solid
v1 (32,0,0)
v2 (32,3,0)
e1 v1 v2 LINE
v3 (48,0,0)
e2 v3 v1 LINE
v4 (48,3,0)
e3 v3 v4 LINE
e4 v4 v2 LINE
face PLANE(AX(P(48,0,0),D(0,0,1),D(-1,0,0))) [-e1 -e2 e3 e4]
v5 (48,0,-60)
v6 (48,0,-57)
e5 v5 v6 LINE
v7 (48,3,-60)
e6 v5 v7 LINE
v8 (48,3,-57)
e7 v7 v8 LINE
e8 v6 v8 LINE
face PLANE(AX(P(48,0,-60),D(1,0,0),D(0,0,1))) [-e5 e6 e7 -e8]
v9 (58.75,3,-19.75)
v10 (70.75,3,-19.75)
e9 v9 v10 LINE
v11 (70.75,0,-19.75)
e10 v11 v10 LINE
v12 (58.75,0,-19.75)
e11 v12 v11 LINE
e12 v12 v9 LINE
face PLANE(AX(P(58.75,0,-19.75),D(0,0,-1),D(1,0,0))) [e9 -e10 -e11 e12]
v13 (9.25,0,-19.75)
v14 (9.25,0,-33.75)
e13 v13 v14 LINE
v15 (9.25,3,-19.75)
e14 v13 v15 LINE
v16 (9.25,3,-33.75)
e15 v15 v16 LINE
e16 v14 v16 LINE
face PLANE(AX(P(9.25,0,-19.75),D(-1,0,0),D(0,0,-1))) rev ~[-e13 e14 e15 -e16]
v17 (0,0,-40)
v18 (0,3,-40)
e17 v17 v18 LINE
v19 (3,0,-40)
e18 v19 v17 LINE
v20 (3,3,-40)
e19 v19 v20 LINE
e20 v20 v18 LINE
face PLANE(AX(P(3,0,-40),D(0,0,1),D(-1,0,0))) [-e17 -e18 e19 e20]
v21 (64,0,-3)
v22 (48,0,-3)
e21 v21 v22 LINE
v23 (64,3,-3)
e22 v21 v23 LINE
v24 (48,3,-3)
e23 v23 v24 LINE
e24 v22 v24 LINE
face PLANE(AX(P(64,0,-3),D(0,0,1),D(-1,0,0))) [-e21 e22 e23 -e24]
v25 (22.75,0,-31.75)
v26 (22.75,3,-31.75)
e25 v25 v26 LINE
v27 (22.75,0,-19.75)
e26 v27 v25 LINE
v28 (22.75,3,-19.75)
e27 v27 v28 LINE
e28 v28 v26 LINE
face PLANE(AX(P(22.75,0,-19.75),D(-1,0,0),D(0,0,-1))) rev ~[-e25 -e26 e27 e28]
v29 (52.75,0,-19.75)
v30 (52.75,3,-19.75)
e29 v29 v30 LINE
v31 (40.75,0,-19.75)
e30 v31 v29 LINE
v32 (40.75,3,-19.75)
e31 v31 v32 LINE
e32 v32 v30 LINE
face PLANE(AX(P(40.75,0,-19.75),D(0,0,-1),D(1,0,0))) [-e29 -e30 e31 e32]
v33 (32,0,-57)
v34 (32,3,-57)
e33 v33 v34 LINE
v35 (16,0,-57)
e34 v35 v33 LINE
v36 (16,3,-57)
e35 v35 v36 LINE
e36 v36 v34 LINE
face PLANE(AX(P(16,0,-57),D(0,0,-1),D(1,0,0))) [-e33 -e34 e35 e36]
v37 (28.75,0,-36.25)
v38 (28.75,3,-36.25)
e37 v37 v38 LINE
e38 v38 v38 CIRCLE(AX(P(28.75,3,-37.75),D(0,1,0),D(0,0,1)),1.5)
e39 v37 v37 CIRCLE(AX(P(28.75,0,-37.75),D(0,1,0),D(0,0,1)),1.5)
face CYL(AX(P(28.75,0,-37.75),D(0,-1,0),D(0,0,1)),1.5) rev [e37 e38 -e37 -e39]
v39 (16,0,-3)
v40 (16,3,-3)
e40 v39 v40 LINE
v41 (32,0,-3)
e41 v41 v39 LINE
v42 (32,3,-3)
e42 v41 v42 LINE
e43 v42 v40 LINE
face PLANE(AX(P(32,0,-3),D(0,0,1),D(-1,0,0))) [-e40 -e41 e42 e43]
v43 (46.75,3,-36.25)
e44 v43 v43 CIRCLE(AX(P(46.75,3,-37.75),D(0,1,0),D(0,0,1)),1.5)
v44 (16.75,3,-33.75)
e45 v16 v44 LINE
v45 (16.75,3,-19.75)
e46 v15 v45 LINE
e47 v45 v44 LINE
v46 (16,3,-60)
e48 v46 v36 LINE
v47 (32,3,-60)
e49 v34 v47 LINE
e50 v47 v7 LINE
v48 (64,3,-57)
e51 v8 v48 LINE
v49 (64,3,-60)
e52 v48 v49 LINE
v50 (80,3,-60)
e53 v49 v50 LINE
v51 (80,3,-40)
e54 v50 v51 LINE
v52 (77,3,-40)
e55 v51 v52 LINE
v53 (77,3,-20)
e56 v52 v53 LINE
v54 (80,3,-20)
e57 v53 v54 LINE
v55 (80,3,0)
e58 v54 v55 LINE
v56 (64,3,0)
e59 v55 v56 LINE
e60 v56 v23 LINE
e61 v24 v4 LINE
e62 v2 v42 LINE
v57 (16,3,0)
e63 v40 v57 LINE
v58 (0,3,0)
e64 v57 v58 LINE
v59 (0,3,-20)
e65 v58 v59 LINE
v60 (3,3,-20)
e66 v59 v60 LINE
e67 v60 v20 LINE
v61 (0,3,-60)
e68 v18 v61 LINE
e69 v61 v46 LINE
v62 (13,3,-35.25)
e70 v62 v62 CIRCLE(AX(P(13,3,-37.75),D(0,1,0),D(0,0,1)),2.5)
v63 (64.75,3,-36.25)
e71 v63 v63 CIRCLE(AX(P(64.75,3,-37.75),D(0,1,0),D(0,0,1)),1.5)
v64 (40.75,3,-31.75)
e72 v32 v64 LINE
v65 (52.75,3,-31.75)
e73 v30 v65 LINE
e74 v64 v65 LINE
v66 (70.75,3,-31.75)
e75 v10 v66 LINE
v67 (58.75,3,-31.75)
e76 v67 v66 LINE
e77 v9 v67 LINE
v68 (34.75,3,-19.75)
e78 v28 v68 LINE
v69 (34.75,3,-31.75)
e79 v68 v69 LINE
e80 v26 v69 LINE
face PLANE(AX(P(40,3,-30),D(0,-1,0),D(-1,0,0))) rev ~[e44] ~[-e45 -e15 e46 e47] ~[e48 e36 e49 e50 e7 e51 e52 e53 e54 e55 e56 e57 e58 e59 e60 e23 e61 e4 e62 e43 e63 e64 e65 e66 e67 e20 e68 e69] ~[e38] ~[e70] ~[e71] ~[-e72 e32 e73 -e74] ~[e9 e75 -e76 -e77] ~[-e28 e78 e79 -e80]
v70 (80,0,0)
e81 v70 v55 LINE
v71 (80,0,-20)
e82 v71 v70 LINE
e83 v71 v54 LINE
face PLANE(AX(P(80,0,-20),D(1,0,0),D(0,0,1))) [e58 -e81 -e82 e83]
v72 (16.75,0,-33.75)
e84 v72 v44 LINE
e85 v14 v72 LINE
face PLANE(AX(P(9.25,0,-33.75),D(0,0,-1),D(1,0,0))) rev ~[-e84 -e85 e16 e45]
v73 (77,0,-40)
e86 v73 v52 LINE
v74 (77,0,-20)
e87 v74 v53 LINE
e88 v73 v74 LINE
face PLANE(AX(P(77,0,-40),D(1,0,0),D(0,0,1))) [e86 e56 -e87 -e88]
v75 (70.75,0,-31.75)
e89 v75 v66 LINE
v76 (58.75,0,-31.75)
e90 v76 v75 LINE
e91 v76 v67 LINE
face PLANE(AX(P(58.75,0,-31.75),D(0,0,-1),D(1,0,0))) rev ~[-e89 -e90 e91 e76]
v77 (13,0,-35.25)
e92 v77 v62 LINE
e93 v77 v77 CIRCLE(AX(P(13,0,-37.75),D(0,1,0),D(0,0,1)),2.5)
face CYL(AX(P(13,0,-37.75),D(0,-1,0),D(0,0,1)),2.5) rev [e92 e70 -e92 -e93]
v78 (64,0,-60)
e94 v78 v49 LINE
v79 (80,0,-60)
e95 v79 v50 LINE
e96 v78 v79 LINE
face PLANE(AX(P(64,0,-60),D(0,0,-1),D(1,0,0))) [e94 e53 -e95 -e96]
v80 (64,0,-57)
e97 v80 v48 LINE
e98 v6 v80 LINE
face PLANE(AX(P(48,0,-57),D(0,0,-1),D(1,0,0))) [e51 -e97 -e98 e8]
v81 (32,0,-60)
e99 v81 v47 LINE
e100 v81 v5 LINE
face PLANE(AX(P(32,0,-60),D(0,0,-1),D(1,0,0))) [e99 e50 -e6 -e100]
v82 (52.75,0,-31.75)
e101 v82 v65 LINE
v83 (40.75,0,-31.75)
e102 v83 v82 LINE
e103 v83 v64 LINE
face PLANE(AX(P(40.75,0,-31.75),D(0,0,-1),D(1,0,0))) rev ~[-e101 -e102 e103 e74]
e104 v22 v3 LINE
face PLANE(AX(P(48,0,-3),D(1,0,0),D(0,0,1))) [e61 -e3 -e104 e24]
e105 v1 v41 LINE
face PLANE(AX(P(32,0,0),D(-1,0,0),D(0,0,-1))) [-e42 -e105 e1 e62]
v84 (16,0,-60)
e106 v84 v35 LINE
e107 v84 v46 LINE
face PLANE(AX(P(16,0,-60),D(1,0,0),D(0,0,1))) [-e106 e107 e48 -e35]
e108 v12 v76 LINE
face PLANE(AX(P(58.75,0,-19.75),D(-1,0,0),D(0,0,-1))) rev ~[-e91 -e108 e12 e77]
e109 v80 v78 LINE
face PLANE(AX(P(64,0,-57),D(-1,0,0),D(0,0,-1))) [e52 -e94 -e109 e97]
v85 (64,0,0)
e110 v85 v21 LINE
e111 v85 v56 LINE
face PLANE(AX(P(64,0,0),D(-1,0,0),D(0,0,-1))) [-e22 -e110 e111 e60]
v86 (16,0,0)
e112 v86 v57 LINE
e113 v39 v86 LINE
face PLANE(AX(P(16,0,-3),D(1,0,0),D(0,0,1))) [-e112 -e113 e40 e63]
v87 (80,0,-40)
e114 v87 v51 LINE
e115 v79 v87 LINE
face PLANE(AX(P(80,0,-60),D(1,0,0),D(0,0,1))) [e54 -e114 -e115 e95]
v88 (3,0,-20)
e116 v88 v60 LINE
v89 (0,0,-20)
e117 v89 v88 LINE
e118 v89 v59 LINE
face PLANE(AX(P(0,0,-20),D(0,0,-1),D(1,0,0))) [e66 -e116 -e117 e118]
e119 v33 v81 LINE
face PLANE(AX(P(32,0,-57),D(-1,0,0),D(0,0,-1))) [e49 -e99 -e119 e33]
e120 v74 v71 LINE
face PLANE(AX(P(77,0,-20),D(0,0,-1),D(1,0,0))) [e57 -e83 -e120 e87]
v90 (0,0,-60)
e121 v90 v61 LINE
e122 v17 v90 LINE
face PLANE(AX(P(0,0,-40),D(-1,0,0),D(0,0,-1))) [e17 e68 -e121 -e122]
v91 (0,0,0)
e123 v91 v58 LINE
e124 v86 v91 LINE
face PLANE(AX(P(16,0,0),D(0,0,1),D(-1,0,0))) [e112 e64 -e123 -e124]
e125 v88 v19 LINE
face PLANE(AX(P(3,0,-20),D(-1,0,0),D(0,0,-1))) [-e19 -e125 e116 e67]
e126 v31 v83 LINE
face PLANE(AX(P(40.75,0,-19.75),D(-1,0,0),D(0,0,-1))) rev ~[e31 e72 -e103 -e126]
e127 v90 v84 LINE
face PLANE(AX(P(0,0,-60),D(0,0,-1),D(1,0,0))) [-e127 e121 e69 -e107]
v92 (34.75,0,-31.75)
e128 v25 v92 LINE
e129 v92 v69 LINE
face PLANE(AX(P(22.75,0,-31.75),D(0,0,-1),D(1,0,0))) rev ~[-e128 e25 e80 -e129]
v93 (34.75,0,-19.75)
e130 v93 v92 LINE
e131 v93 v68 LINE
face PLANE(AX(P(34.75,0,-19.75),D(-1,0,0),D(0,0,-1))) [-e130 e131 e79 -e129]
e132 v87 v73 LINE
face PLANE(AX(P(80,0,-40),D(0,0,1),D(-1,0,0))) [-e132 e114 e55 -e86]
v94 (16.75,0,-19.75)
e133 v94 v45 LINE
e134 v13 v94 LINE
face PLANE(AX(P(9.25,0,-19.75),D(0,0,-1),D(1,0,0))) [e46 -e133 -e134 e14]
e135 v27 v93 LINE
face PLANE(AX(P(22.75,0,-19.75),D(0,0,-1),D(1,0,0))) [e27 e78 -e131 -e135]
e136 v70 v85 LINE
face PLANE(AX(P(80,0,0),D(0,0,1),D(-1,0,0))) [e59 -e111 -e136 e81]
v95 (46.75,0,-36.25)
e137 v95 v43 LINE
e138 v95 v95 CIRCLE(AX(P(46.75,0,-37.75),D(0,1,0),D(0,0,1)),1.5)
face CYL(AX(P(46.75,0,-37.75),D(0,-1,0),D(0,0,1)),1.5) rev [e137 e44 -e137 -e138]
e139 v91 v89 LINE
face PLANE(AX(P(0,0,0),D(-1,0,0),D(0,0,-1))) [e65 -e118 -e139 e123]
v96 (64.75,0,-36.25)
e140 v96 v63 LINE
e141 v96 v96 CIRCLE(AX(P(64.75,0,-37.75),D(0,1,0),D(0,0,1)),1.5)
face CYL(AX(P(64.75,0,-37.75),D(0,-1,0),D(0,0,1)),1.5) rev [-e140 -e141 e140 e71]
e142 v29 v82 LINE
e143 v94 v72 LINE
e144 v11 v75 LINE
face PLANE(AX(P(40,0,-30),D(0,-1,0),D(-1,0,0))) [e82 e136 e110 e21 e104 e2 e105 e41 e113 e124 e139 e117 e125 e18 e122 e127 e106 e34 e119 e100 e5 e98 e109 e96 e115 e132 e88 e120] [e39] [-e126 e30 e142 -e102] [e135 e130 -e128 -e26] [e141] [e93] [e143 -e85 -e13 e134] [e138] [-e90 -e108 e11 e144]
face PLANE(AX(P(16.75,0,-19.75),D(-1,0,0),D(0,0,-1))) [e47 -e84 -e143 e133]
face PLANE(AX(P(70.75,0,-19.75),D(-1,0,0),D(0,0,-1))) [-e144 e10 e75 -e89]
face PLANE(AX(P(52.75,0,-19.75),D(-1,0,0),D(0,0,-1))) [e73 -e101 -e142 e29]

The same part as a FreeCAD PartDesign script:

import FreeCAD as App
import Part
import Sketcher

V = App.Vector


def add_polygon(sketch, points):
    """Adds a closed chain of lines whose ends are joined by coincident constraints."""
    first, n = sketch.GeometryCount, len(points)
    for a, b in zip(points, points[1:] + points[:1]):
        sketch.addGeometry(Part.LineSegment(App.Vector(*a, 0), App.Vector(*b, 0)), False)
    for i in range(n):
        sketch.addConstraint(Sketcher.Constraint("Coincident", first + i, 2, first + (i + 1) % n, 1))

doc = App.newDocument("Part")
body = doc.addObject("PartDesign::Body", "Body")

sketch1 = doc.addObject("Sketcher::SketchObject", "Sketch")
body.addObject(sketch1)
sketch1.AttachmentSupport = (doc.XZ_Plane, [""])
sketch1.MapMode = "FlatFace"
add_polygon(sketch1, [(48, -60), (32, -60), (32, -57), (16, -57), (16, -60), (0, -60), (0, -40), (3, -40), (3, -20), (0, -20), (0, 0), (16, 0), (16, -3), (32, -3), (32, 0), (48, 0), (48, -3), (64, -3), (64, 0), (80, 0), (80, -20), (77, -20), (77, -40), (80, -40), (80, -60), (64, -60), (64, -57), (48, -57)])
add_polygon(sketch1, [(58.8, -19.8), (58.8, -31.8), (70.8, -31.8), (70.8, -19.8)])
add_polygon(sketch1, [(40.8, -19.8), (40.8, -31.8), (52.8, -31.8), (52.8, -19.8)])
add_polygon(sketch1, [(22.8, -19.8), (22.8, -31.8), (34.8, -31.8), (34.8, -19.8)])
add_polygon(sketch1, [(9.2, -19.8), (9.2, -33.8), (16.8, -33.8), (16.8, -19.8)])
sketch1.addGeometry(Part.Circle(V(64.8, -37.8, 0), V(0, 0, 1), 1.5), False)
sketch1.addGeometry(Part.Circle(V(46.8, -37.8, 0), V(0, 0, 1), 1.5), False)
sketch1.addGeometry(Part.Circle(V(28.8, -37.8, 0), V(0, 0, 1), 1.5), False)
sketch1.addGeometry(Part.Circle(V(13, -37.8, 0), V(0, 0, 1), 2.5), False)
sketch1.addConstraint([
    Sketcher.Constraint("Horizontal", 0),
    Sketcher.Constraint("Vertical", 1),
    Sketcher.Constraint("Horizontal", 2),
    Sketcher.Constraint("Vertical", 3),
    Sketcher.Constraint("Horizontal", 4),
    Sketcher.Constraint("Vertical", 5),
    Sketcher.Constraint("Horizontal", 6),
    Sketcher.Constraint("Vertical", 7),
    Sketcher.Constraint("Horizontal", 8),
    Sketcher.Constraint("Vertical", 9),
    Sketcher.Constraint("Horizontal", 10),
    Sketcher.Constraint("Vertical", 11),
    Sketcher.Constraint("Horizontal", 12),
    Sketcher.Constraint("Vertical", 13),
    Sketcher.Constraint("Horizontal", 14),
    Sketcher.Constraint("Vertical", 15),
    Sketcher.Constraint("Horizontal", 16),
    Sketcher.Constraint("Vertical", 17),
    Sketcher.Constraint("Horizontal", 18),
    Sketcher.Constraint("Vertical", 19),
    Sketcher.Constraint("Horizontal", 20),
    Sketcher.Constraint("Vertical", 21),
    Sketcher.Constraint("Horizontal", 22),
    Sketcher.Constraint("Vertical", 23),
    Sketcher.Constraint("Horizontal", 24),
    Sketcher.Constraint("Vertical", 25),
    Sketcher.Constraint("Horizontal", 26),
    Sketcher.Constraint("Vertical", 27),
    Sketcher.Constraint("Vertical", 28),
    Sketcher.Constraint("Horizontal", 29),
    Sketcher.Constraint("Vertical", 30),
    Sketcher.Constraint("Horizontal", 31),
    Sketcher.Constraint("Vertical", 32),
    Sketcher.Constraint("Horizontal", 33),
    Sketcher.Constraint("Vertical", 34),
    Sketcher.Constraint("Horizontal", 35),
    Sketcher.Constraint("Vertical", 36),
    Sketcher.Constraint("Horizontal", 37),
    Sketcher.Constraint("Vertical", 38),
    Sketcher.Constraint("Horizontal", 39),
    Sketcher.Constraint("Vertical", 40),
    Sketcher.Constraint("Horizontal", 41),
    Sketcher.Constraint("Vertical", 42),
    Sketcher.Constraint("Horizontal", 43),
    Sketcher.Constraint("Coincident", 9, 2, -1, 1),
    Sketcher.Constraint("Equal", 44, 45),
    Sketcher.Constraint("Equal", 45, 46),
    Sketcher.Constraint("PointOnObject", 4, 2, -2),
    Sketcher.Constraint("PointOnObject", 13, 2, -1),
    Sketcher.Constraint("PointOnObject", 17, 2, -1),
    Sketcher.Constraint("Horizontal", 44, 3, 45, 3),
    Sketcher.Constraint("Horizontal", 45, 3, 46, 3),
    Sketcher.Constraint("Horizontal", 46, 3, 47, 3),
    Sketcher.Constraint("Horizontal", 0, 2, 3, 2),
    Sketcher.Constraint("Horizontal", 12, 2, 15, 2),
    Sketcher.Constraint("Horizontal", 8, 2, 19, 2),
    Sketcher.Constraint("Horizontal", 6, 2, 21, 2),
    Sketcher.Constraint("Horizontal", 4, 2, 23, 2),
    Sketcher.Constraint("Horizontal", 2, 2, 25, 2),
    Sketcher.Constraint("Horizontal", 29, 2, 32, 2),
    Sketcher.Constraint("Horizontal", 31, 2, 34, 2),
    Sketcher.Constraint("Horizontal", 33, 2, 36, 2),
    Sketcher.Constraint("Horizontal", 35, 2, 38, 2),
    Sketcher.Constraint("Horizontal", 39, 2, 42, 2),
    Sketcher.Constraint("Vertical", 3, 2, 10, 2),
    Sketcher.Constraint("Vertical", 1, 2, 12, 2),
    Sketcher.Constraint("Vertical", 19, 2, 22, 2),
    Sketcher.Constraint("Vertical", 17, 2, 24, 2),
    Sketcher.Constraint("Vertical", 15, 2, 26, 2),
    Sketcher.Constraint("Equal", 0, 2),
    Sketcher.Constraint("Equal", 2, 4),
    Sketcher.Constraint("Equal", 14, 16),
    Sketcher.Constraint("Equal", 16, 18),
    Sketcher.Constraint("Equal", 8, 20),
    Sketcher.Constraint("Equal", 31, 33),
    Sketcher.Constraint("Equal", 35, 37),
    Sketcher.Constraint("Equal", 22, 1),
    Sketcher.Constraint("Equal", 5, 7),
    Sketcher.Constraint("Equal", 7, 9),
    Sketcher.Constraint("Equal", 3, 11),
    Sketcher.Constraint("Equal", 39, 28),
    Sketcher.Constraint("Diameter", 44, 3.0),
    Sketcher.Constraint("Diameter", 47, 5.0),
    Sketcher.Constraint("DistanceX", 0, 2, 0, 1, 16.0),
    Sketcher.Constraint("DistanceX", 6, 1, 6, 2, 3.0),
    Sketcher.Constraint("DistanceX", 29, 1, 29, 2, 12.0),
    Sketcher.Constraint("DistanceY", 5, 1, 5, 2, 20.0),
    Sketcher.Constraint("DistanceY", 40, 2, 40, 1, 14.0),
    Sketcher.Constraint("DistanceX", 41, 1, 41, 2, 7.5),
    Sketcher.Constraint("DistanceX", -1, 1, 47, 3, 13.0),
    Sketcher.Constraint("DistanceX", 45, 3, 44, 3, 18.0),
    Sketcher.Constraint("DistanceX", 46, 3, 45, 3, 18.0),
    Sketcher.Constraint("DistanceX", 28, 2, 44, 3, 6.0),
    Sketcher.Constraint("DistanceY", 44, 3, 28, 2, 6.0),
    Sketcher.Constraint("DistanceX", 32, 2, 45, 3, 6.0),
    Sketcher.Constraint("DistanceX", 36, 2, 46, 3, 6.0),
    Sketcher.Constraint("DistanceX", 41, 2, 36, 2, 6.0),
    Sketcher.Constraint("DistanceX", -1, 1, 44, 3, 64.75),
    Sketcher.Constraint("DistanceY", 44, 3, -1, 1, 37.75),
])
pad1 = doc.addObject("PartDesign::Pad", "Pad")
body.addObject(pad1)
pad1.Profile = sketch1
pad1.Length = 3
pad1.Reversed = True

doc.recompute()
